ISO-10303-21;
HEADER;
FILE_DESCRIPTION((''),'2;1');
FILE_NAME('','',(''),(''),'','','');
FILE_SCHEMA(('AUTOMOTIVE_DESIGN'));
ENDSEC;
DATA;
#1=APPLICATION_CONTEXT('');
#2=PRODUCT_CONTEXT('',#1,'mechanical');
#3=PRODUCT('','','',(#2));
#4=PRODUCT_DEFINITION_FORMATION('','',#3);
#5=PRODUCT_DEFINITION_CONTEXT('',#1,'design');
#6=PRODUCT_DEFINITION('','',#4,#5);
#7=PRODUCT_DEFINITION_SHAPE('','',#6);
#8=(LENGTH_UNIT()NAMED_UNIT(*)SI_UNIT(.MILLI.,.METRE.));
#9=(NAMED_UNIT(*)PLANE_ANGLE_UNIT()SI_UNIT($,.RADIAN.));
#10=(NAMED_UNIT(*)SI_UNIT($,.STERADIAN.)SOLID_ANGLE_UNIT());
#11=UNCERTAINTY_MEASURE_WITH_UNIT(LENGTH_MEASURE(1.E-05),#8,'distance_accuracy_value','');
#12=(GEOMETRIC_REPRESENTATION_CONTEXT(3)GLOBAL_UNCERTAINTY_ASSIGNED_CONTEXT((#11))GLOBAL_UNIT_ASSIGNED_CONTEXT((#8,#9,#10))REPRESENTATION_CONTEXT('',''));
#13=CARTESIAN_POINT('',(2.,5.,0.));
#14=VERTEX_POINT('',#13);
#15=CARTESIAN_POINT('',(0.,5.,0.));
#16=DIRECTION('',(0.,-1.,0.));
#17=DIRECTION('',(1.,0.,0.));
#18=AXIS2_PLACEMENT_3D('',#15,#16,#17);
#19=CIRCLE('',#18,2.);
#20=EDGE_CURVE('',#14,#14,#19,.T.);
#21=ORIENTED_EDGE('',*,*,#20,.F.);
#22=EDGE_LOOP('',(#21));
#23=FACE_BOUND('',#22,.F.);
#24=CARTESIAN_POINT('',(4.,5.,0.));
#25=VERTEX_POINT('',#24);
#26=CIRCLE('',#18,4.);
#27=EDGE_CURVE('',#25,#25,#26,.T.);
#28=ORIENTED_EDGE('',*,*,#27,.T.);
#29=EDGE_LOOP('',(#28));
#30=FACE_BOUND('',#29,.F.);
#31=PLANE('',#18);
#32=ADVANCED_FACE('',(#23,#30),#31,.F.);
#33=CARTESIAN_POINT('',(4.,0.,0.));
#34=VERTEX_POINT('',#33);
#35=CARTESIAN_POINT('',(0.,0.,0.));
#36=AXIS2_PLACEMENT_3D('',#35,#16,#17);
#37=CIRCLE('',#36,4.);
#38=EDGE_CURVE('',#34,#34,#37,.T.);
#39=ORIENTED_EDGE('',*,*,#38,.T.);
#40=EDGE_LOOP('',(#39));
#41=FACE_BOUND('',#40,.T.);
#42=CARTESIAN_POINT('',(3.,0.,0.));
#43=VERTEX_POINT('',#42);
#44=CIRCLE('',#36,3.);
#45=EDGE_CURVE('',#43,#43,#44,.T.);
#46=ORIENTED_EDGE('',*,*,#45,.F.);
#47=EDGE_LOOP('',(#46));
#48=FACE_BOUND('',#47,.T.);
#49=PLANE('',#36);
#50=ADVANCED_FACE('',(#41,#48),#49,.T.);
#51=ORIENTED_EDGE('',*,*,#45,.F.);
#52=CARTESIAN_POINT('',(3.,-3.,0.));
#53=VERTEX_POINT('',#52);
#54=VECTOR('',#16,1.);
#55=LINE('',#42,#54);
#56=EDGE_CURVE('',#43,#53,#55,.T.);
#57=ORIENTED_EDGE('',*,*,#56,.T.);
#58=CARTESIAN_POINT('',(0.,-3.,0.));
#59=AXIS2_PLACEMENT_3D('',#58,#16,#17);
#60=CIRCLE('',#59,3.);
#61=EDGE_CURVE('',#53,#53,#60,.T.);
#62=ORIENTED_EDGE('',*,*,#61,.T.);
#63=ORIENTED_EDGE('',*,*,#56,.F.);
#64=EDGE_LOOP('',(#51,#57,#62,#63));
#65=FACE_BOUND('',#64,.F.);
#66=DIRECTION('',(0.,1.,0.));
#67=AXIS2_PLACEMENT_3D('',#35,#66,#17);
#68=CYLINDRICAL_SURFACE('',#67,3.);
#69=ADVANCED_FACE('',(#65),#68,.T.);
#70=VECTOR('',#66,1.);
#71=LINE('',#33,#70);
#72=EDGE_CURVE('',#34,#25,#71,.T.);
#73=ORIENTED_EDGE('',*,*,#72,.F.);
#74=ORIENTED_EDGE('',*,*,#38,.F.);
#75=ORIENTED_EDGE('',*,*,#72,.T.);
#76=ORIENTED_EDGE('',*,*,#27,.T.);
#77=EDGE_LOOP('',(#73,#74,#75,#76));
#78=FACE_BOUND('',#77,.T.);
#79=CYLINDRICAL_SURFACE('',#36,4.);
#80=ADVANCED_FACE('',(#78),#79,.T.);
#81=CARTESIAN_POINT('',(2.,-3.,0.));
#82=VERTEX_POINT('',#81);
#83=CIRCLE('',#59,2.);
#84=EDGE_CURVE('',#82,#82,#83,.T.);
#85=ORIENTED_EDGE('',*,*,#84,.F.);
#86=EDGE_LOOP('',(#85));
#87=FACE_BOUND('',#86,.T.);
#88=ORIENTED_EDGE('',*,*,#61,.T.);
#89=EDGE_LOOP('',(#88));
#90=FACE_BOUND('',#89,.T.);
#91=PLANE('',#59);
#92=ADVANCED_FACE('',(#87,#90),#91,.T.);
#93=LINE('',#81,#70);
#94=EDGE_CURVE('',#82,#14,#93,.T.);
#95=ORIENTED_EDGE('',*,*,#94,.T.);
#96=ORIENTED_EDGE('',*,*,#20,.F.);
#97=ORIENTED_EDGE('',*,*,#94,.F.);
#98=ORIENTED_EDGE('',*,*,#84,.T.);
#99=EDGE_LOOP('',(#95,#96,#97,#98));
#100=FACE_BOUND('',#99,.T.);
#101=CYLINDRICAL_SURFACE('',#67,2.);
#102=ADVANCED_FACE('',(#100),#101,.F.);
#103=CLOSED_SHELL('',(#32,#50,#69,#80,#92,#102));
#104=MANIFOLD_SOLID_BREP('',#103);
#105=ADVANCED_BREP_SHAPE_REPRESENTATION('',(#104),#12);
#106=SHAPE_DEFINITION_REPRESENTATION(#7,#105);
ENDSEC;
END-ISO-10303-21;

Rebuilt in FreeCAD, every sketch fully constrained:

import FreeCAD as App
import Part
import Sketcher

V = App.Vector

doc = App.newDocument("Part")
params = doc.addObject("Spreadsheet::Sheet", "Params")
for row, (alias, value) in enumerate([
    ("sketch1_diameter", "6 mm"),
    ("sketch1_diameter2", "4 mm"),
    ("pad1_length", "5 mm"),
    ("sketch2_diameter", "8 mm"),
    ("sketch2_diameter2", "6 mm"),
    ("pad2_length", "5 mm"),
    ("sketch3_diameter", "6 mm"),
    ("sketch3_diameter2", "4 mm"),
    ("pad3_length", "3 mm"),
], start=1):
    params.set(f"A{row}", alias)
    params.set(f"B{row}", "=" + value)
    params.setAlias(f"B{row}", alias)

body = doc.addObject("PartDesign::Body", "Body")

sketch1 = body.newObject("Sketcher::SketchObject", "Sketch")
sketch1.AttachmentSupport = (doc.getObject("XZ_Plane"), [""])
sketch1.MapMode = "FlatFace"
sketch1.addGeometry([
    Part.Circle(V(0, 0, 0), V(0, 0, 1), 3),
    Part.Circle(V(0, 0, 0), V(0, 0, 1), 2),
], False)
sketch1.addConstraint([
    Sketcher.Constraint("Coincident", 0, 3, -1, 1),
    Sketcher.Constraint("Coincident", 1, 3, -1, 1),
    Sketcher.Constraint("Diameter", 0, 6.0),
    Sketcher.Constraint("Diameter", 1, 4.0),
])
sketch1.setExpression("Constraints[2]", "Params.sketch1_diameter")
sketch1.setExpression("Constraints[3]", "Params.sketch1_diameter2")
pad1 = body.newObject("PartDesign::Pad", "Pad")
pad1.Profile = sketch1
pad1.setExpression("Length", "Params.pad1_length")
pad1.Reversed = True

sketch2 = body.newObject("Sketcher::SketchObject", "Sketch001")
sketch2.AttachmentSupport = (doc.getObject("XZ_Plane"), [""])
sketch2.MapMode = "FlatFace"
sketch2.addGeometry([
    Part.Circle(V(0, 0, 0), V(0, 0, 1), 4),
    Part.Circle(V(0, 0, 0), V(0, 0, 1), 3),
], False)
sketch2.addConstraint([
    Sketcher.Constraint("Coincident", 0, 3, -1, 1),
    Sketcher.Constraint("Coincident", 1, 3, -1, 1),
    Sketcher.Constraint("Diameter", 0, 8.0),
    Sketcher.Constraint("Diameter", 1, 6.0),
])
sketch2.setExpression("Constraints[2]", "Params.sketch2_diameter")
sketch2.setExpression("Constraints[3]", "Params.sketch2_diameter2")
pad2 = body.newObject("PartDesign::Pad", "Pad001")
pad2.Profile = sketch2
pad2.setExpression("Length", "Params.pad2_length")
pad2.Reversed = True

sketch3 = body.newObject("Sketcher::SketchObject", "Sketch002")
sketch3.AttachmentSupport = (doc.getObject("XZ_Plane"), [""])
sketch3.MapMode = "FlatFace"
sketch3.addGeometry([
    Part.Circle(V(0, 0, 0), V(0, 0, 1), 3),
    Part.Circle(V(0, 0, 0), V(0, 0, 1), 2),
], False)
sketch3.addConstraint([
    Sketcher.Constraint("Coincident", 0, 3, -1, 1),
    Sketcher.Constraint("Coincident", 1, 3, -1, 1),
    Sketcher.Constraint("Diameter", 0, 6.0),
    Sketcher.Constraint("Diameter", 1, 4.0),
])
sketch3.setExpression("Constraints[2]", "Params.sketch3_diameter")
sketch3.setExpression("Constraints[3]", "Params.sketch3_diameter2")
pad3 = body.newObject("PartDesign::Pad", "Pad002")
pad3.Profile = sketch3
pad3.setExpression("Length", "Params.pad3_length")

doc.recompute()
